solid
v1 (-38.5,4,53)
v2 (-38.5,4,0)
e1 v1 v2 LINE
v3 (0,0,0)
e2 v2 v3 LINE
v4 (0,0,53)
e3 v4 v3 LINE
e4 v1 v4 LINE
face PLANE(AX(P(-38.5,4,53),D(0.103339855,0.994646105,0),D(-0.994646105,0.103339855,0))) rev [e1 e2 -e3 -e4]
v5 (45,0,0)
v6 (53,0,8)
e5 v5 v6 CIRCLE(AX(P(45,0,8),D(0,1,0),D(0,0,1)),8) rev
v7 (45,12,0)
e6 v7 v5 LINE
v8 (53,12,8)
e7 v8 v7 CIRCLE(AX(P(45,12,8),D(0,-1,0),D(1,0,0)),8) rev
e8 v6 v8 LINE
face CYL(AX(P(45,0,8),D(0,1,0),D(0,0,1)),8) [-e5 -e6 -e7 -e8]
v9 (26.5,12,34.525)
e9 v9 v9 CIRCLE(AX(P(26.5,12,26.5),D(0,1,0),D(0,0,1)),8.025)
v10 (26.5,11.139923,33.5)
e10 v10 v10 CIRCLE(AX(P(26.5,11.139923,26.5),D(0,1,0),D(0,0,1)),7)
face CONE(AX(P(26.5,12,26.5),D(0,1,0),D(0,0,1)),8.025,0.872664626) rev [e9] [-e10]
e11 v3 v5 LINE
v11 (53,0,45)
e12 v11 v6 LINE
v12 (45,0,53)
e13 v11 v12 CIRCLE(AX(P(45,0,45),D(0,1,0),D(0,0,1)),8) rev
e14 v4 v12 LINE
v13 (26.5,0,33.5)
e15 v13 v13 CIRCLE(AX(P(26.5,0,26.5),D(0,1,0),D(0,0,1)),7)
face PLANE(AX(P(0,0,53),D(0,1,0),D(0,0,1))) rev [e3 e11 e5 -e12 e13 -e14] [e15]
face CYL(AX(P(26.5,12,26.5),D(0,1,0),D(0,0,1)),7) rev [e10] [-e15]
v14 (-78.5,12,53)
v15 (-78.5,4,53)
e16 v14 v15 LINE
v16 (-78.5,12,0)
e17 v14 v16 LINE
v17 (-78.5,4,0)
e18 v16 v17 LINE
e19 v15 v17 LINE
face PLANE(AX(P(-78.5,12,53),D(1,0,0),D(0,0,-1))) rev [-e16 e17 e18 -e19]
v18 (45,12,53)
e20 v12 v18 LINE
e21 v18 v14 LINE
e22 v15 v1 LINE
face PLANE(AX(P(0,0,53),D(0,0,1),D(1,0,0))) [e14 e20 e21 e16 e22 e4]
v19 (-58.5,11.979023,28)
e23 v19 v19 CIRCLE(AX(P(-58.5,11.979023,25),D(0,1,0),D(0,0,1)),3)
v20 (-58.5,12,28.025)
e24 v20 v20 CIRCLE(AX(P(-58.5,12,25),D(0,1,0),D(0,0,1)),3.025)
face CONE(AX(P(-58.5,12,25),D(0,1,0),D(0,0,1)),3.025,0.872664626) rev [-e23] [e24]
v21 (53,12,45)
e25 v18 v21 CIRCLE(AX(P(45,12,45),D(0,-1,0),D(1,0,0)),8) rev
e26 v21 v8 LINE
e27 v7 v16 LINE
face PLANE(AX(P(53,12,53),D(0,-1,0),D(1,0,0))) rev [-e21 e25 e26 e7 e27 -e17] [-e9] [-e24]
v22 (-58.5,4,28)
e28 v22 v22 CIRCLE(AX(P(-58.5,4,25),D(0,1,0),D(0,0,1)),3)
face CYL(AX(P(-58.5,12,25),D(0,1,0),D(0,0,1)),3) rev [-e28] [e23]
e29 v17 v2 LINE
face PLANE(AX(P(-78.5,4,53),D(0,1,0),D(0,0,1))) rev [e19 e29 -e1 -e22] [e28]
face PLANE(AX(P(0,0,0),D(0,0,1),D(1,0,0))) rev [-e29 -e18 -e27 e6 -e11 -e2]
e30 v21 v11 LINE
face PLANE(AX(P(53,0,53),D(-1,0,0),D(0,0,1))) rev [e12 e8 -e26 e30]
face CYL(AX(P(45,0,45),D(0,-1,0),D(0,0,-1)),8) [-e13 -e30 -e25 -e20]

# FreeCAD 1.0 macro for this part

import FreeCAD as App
import Part
import Sketcher
from FreeCAD import Vector


def edges_at(feature, points):
    """Names of the edges that pass closest to the given points."""
    edges = feature.Shape.Edges
    near = lambda p: min(range(len(edges)), key=lambda i: edges[i].distToShape(Part.Vertex(*p))[0])
    return sorted({f"Edge{near(p) + 1}" for p in points})


def add_polygon(sketch, points):
    """Adds a closed chain of lines whose ends are joined by coincident constraints."""
    first, n = sketch.GeometryCount, len(points)
    for a, b in zip(points, points[1:] + points[:1]):
        sketch.addGeometry(Part.LineSegment(App.Vector(*a, 0), App.Vector(*b, 0)), False)
    for i in range(n):
        sketch.addConstraint(Sketcher.Constraint("Coincident", first + i, 2, first + (i + 1) % n, 1))

doc = App.newDocument("Part")
body = doc.addObject("PartDesign::Body", "Body")

# Sketch on XY plane
sketch1 = body.newObject("Sketcher::SketchObject", "Sketch")
sketch1.AttachmentSupport = (doc.getObject("XY_Plane"), [""])
sketch1.MapMode = "FlatFace"
add_polygon(sketch1, [(0, 0), (53, 0), (53, 12), (-78.5, 12), (-78.5, 4), (-38.5, 4)])  # lines 0-5
sketch1.addConstraint(Sketcher.Constraint("Horizontal", 0))
sketch1.addConstraint(Sketcher.Constraint("Vertical", 1))
sketch1.addConstraint(Sketcher.Constraint("Horizontal", 2))
sketch1.addConstraint(Sketcher.Constraint("Vertical", 3))
sketch1.addConstraint(Sketcher.Constraint("Horizontal", 4))
sketch1.addConstraint(Sketcher.Constraint("Coincident", 5, 2, -1, 1))
sketch1.addConstraint(Sketcher.Constraint("DistanceX", 0, 1, 0, 2, 53.0))
sketch1.addConstraint(Sketcher.Constraint("DistanceX", 4, 1, 4, 2, 40.0))
sketch1.addConstraint(Sketcher.Constraint("DistanceY", 1, 1, 1, 2, 12.0))
sketch1.addConstraint(Sketcher.Constraint("DistanceY", 3, 2, 3, 1, 8.0))
sketch1.addConstraint(Sketcher.Constraint("DistanceX", 2, 2, 2, 1, 131.5))
pad1 = body.newObject("PartDesign::Pad", "Pad")
pad1.Profile = sketch1
pad1.Length = 53
doc.recompute()

fillet = body.newObject("PartDesign::Fillet", "Fillet")
fillet.Base = (pad1, edges_at(pad1, [(53, 6, 0)]))
fillet.Radius = 8

# Sketch on XZ plane
sketch2 = body.newObject("Sketcher::SketchObject", "Sketch001")
sketch2.AttachmentSupport = (doc.getObject("XZ_Plane"), [""])
sketch2.MapMode = "FlatFace"
sketch2.AttachmentOffset = App.Placement(Vector(0, 0, -12), App.Rotation())
sketch2.addGeometry(Part.Circle(Vector(26.5, 26.5, 0), Vector(0, 0, 1), 7), False)
sketch2.addConstraint(Sketcher.Constraint("Diameter", 0, 14.0))
sketch2.addConstraint(Sketcher.Constraint("DistanceX", -1, 1, 0, 3, 26.5))
sketch2.addConstraint(Sketcher.Constraint("DistanceY", -1, 1, 0, 3, 26.5))
doc.recompute()
hole = body.newObject("PartDesign::Hole", "Hole")
hole.Profile = sketch2
hole.ThreadType = "None"
hole.Diameter = 14
hole.DepthType = "ThroughAll"
hole.HoleCutType = "Countersink"
hole.HoleCutDiameter = 16.05
hole.HoleCutCountersinkAngle = 100
hole.Reversed = True

# Sketch on XZ plane
sketch3 = body.newObject("Sketcher::SketchObject", "Sketch002")
sketch3.AttachmentSupport = (doc.getObject("XZ_Plane"), [""])
sketch3.MapMode = "FlatFace"
sketch3.AttachmentOffset = App.Placement(Vector(0, 0, -12), App.Rotation())
sketch3.addGeometry(Part.Circle(Vector(-58.5, 25, 0), Vector(0, 0, 1), 3), False)
sketch3.addConstraint(Sketcher.Constraint("Diameter", 0, 6.0))
sketch3.addConstraint(Sketcher.Constraint("DistanceY", -1, 1, 0, 3, 25.0))
sketch3.addConstraint(Sketcher.Constraint("DistanceX", 0, 3, -1, 1, 58.5))
doc.recompute()
hole2 = body.newObject("PartDesign::Hole", "Hole001")
hole2.Profile = sketch3
hole2.ThreadType = "None"
hole2.Diameter = 6
hole2.DepthType = "ThroughAll"
hole2.HoleCutType = "Countersink"
hole2.HoleCutDiameter = 6.05
hole2.HoleCutCountersinkAngle = 100
hole2.Reversed = True
doc.recompute()

fillet2 = body.newObject("PartDesign::Fillet", "Fillet001")
fillet2.Base = (hole2, edges_at(hole2, [(53, 6, 53)]))
fillet2.Radius = 8

doc.recompute()
